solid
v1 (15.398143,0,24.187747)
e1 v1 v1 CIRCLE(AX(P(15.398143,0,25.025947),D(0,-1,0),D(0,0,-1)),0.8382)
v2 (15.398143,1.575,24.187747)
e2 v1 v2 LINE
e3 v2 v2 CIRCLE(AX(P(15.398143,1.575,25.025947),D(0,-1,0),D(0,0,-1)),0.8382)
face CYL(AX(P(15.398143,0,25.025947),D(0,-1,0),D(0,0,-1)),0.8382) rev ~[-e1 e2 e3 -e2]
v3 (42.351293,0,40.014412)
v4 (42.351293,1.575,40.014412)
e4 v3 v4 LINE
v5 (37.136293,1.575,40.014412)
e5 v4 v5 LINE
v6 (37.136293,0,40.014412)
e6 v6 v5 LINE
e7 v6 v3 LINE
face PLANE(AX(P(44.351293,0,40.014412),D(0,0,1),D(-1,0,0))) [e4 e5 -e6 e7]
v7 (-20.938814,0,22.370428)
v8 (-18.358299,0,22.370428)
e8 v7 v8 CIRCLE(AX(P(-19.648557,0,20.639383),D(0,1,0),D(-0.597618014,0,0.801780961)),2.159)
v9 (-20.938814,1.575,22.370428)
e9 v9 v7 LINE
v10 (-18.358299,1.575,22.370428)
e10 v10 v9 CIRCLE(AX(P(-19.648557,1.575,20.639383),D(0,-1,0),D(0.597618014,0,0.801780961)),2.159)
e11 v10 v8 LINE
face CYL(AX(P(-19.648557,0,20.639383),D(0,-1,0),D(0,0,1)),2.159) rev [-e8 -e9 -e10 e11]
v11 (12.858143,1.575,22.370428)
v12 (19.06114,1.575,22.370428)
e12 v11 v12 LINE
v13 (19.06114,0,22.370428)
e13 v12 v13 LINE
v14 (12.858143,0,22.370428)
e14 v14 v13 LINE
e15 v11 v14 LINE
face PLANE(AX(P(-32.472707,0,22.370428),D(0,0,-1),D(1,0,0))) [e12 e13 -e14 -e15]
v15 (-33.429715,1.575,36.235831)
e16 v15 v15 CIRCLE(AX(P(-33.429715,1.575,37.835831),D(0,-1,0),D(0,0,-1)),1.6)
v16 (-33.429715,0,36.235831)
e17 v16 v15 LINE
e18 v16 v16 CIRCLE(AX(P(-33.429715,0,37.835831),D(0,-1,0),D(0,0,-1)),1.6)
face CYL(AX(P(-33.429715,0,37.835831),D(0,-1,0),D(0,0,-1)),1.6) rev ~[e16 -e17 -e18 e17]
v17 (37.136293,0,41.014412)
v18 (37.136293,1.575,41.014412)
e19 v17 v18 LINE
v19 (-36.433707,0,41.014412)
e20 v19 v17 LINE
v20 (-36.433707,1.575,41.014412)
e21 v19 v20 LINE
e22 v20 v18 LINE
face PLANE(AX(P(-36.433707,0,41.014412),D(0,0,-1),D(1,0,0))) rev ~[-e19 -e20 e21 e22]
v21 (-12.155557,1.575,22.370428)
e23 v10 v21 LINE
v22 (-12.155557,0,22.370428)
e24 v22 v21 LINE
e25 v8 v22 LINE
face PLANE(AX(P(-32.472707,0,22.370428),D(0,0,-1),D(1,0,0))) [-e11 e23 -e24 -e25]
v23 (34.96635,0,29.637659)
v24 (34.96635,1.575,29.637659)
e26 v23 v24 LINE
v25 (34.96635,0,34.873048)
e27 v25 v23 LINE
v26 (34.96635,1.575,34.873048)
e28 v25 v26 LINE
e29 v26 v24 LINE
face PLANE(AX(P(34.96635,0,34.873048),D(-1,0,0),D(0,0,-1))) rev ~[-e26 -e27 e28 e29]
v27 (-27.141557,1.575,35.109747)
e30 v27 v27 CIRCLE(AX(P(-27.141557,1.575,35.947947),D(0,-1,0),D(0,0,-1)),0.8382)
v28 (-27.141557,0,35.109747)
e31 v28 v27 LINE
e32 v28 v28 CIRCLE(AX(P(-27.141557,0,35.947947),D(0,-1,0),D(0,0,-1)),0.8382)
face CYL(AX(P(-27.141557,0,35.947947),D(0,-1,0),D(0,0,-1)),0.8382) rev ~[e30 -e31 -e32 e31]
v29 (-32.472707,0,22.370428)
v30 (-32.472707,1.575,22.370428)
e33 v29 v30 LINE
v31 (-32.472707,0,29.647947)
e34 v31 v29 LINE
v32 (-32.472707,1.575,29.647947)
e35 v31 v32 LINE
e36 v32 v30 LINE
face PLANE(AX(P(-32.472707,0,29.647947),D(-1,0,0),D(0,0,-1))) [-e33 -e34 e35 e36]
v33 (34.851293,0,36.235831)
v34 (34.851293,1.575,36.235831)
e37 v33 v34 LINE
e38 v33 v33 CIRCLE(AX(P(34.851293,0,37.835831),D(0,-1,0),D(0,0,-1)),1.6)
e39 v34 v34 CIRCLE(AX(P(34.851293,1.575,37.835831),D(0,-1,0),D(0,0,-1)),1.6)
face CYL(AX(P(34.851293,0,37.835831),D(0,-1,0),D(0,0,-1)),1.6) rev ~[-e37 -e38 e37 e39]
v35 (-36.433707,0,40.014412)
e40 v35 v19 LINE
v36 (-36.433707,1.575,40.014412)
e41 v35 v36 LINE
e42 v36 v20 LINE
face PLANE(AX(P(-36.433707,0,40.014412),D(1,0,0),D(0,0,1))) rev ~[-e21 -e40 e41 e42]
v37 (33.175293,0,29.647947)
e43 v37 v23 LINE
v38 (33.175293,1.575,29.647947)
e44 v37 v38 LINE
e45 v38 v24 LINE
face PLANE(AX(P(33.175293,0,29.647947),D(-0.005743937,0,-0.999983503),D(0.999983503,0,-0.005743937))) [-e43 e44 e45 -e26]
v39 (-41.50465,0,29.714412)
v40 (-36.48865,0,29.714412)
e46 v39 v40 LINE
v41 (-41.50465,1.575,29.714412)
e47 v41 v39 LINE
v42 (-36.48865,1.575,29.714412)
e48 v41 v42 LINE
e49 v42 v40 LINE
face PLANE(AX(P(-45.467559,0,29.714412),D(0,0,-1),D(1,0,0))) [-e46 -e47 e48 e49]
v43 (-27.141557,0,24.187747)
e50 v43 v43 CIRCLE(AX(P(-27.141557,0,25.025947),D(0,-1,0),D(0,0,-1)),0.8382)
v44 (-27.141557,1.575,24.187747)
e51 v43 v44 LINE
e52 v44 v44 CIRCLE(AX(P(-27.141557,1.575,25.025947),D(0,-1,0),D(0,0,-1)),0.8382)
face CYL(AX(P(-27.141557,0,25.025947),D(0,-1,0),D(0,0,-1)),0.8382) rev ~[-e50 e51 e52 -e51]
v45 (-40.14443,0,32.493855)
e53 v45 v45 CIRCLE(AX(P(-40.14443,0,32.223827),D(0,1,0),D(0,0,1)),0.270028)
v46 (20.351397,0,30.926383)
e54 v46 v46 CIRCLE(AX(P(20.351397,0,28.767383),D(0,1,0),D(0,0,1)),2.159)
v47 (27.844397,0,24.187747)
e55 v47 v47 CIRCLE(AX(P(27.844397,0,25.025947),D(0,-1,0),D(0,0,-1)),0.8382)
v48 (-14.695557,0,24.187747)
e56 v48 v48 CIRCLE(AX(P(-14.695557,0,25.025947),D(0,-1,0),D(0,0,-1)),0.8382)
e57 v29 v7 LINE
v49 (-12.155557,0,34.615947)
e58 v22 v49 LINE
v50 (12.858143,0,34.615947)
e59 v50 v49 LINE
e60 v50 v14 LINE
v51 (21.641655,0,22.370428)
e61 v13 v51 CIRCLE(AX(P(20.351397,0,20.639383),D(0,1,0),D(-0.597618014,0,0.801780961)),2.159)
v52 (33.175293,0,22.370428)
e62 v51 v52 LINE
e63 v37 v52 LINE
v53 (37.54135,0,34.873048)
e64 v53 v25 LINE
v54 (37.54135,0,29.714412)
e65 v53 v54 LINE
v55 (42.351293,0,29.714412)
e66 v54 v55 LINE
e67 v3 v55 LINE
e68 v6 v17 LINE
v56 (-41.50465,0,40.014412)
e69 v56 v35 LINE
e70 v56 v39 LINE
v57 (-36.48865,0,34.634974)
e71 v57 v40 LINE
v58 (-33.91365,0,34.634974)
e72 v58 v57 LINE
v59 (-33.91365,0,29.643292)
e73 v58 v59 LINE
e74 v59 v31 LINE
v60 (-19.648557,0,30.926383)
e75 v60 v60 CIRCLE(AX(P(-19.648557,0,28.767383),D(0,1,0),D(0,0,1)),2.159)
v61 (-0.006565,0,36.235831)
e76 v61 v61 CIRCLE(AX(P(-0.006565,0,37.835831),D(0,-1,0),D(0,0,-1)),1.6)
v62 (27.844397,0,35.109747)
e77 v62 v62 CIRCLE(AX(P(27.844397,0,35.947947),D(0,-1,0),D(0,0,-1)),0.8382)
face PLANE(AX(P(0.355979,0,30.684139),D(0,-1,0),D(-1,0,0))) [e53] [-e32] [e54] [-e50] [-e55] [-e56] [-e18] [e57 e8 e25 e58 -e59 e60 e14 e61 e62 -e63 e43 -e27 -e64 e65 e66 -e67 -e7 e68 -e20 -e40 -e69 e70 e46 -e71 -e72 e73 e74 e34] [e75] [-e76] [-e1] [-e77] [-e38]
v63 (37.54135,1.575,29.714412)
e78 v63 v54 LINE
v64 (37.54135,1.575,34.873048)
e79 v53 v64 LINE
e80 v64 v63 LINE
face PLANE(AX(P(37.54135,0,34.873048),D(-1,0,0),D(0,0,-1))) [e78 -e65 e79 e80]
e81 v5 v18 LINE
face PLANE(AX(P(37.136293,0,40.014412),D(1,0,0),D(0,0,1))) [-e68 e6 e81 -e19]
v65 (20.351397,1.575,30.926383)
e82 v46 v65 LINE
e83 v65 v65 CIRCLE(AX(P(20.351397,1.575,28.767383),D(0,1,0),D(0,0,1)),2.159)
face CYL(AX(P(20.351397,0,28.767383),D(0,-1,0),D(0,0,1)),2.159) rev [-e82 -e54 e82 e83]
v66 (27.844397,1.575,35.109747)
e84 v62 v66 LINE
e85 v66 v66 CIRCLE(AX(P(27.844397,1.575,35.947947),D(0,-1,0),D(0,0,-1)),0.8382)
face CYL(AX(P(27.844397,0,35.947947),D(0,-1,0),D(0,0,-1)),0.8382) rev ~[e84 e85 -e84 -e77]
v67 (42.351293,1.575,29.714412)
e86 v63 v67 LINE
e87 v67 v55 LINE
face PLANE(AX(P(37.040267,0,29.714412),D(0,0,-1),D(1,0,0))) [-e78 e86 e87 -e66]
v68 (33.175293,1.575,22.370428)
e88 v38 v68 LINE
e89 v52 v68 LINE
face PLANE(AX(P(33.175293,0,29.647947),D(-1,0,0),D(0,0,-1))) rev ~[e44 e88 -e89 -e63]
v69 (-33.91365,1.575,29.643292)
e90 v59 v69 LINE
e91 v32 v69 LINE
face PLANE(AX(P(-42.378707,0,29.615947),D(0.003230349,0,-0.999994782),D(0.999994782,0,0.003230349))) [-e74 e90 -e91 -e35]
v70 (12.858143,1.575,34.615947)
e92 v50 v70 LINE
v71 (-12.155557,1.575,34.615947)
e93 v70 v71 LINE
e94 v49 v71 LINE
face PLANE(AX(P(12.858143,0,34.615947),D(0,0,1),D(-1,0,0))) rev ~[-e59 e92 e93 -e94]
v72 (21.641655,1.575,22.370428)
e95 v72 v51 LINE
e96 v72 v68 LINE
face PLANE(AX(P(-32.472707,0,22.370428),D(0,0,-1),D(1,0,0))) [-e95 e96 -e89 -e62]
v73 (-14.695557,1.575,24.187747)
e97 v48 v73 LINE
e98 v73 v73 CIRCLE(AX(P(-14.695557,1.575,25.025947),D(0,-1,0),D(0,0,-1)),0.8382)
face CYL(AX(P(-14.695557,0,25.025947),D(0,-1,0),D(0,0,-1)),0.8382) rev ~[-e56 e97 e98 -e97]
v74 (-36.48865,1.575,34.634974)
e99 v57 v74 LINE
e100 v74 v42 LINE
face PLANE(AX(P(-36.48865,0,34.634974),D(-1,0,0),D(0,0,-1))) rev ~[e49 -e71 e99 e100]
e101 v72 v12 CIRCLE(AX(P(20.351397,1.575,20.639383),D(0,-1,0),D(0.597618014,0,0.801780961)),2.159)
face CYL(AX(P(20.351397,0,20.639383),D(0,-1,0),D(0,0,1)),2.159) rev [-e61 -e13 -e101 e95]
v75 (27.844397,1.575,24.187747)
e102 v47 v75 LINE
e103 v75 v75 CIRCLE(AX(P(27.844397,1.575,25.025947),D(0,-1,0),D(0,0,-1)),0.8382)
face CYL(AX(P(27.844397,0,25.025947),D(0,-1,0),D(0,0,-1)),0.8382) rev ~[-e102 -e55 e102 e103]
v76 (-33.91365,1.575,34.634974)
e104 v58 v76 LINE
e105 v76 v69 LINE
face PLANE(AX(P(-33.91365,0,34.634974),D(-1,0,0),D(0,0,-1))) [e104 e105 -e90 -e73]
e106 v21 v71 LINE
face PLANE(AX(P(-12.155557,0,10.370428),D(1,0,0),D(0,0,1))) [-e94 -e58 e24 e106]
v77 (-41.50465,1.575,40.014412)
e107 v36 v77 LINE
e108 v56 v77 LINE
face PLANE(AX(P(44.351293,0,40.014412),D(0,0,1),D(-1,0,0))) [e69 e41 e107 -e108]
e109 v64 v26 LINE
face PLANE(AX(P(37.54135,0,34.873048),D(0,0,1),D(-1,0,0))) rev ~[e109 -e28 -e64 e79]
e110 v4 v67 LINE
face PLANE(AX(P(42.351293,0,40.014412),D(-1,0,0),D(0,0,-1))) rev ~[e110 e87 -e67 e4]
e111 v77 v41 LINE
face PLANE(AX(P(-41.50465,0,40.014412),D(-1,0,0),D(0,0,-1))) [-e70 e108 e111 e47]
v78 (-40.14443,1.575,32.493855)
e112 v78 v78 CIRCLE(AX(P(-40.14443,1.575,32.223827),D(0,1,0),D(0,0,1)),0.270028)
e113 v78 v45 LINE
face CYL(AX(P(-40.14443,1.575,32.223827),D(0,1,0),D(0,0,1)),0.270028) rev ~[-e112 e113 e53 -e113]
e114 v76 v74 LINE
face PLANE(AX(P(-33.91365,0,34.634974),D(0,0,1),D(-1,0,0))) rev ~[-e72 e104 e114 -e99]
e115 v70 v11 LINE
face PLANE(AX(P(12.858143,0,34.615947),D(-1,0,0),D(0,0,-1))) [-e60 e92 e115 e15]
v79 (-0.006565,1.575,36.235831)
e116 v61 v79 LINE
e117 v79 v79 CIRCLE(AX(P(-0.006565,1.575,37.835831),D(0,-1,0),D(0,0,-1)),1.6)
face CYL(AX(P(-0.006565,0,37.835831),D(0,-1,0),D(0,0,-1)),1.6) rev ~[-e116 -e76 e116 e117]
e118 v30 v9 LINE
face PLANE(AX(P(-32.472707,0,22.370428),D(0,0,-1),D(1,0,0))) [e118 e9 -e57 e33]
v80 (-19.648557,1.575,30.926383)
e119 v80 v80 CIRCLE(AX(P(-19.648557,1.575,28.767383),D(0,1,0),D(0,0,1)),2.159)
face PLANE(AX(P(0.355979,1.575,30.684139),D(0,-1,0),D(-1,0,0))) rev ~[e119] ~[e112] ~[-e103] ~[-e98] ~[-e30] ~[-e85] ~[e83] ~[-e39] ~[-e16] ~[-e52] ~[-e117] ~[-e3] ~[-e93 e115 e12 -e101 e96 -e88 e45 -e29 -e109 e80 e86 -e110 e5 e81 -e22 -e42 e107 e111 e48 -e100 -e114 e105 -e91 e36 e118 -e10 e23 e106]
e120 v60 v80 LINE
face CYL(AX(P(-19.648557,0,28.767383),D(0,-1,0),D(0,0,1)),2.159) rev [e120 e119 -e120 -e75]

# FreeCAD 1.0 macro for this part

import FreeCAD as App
import Part
import Sketcher
Q = App.Units.Quantity

doc = App.newDocument("Part")
body = doc.addObject("PartDesign::Body", "Body")

# Sketch on XZ plane
sketch1 = doc.addObject("Sketcher::SketchObject", "Sketch")
body.addObject(sketch1)
sketch1.AttachmentSupport = (doc.XZ_Plane, [""])
sketch1.MapMode = "FlatFace"
sketch1.addGeometry([
    Part.LineSegment(App.Vector(37.1, 40, 0), App.Vector(44.4, 40, 0)),  # 0
    Part.LineSegment(App.Vector(44.4, 40, 0), App.Vector(44.4, 29.6, 0)),  # 1
    Part.LineSegment(App.Vector(44.4, 29.6, 0), App.Vector(38.7, 29.6, 0)),  # 2
    Part.LineSegment(App.Vector(38.7, 29.6, 0), App.Vector(33.2, 29.6, 0)),  # 3
    Part.LineSegment(App.Vector(33.2, 29.6, 0), App.Vector(33.2, 10.4, 0)),  # 4
    Part.LineSegment(App.Vector(33.2, 10.4, 0), App.Vector(12.9, 10.4, 0)),  # 5
    Part.LineSegment(App.Vector(12.9, 10.4, 0), App.Vector(12.9, 34.6, 0)),  # 6
    Part.LineSegment(App.Vector(12.9, 34.6, 0), App.Vector(-12.2, 34.6, 0)),  # 7
    Part.LineSegment(App.Vector(-12.2, 34.6, 0), App.Vector(-12.2, 10.4, 0)),  # 8
    Part.LineSegment(App.Vector(-12.2, 10.4, 0), App.Vector(-32.5, 10.4, 0)),  # 9
    Part.LineSegment(App.Vector(-32.5, 10.4, 0), App.Vector(-32.5, 29.6, 0)),  # 10
    Part.LineSegment(App.Vector(-32.5, 29.6, 0), App.Vector(-42.4, 29.6, 0)),  # 11
    Part.LineSegment(App.Vector(-42.4, 29.6, 0), App.Vector(-43.6, 29.6, 0)),  # 12
    Part.LineSegment(App.Vector(-43.6, 29.6, 0), App.Vector(-43.6, 40, 0)),  # 13
    Part.LineSegment(App.Vector(-43.6, 40, 0), App.Vector(-36.4, 40, 0)),  # 14
    Part.LineSegment(App.Vector(-36.4, 40, 0), App.Vector(-36.4, 46.6, 0)),  # 15
    Part.LineSegment(App.Vector(-36.4, 46.6, 0), App.Vector(37.1, 46.6, 0)),  # 16
    Part.LineSegment(App.Vector(37.1, 46.6, 0), App.Vector(37.1, 40, 0)),  # 17
    Part.Circle(App.Vector(20.4, 28.8, 0), App.Vector(0, 0, 1), 2.2),  # 18
    Part.Circle(App.Vector(-19.6, 28.8, 0), App.Vector(0, 0, 1), 2.2),  # 19
    Part.Circle(App.Vector(20.4, 20.6, 0), App.Vector(0, 0, 1), 2.2),  # 20
    Part.Circle(App.Vector(-19.6, 20.6, 0), App.Vector(0, 0, 1), 2.2),  # 21
], False)
sketch1.addConstraint([
    Sketcher.Constraint("Coincident", 0, 2, 1, 1),
    Sketcher.Constraint("Coincident", 1, 2, 2, 1),
    Sketcher.Constraint("Coincident", 2, 2, 3, 1),
    Sketcher.Constraint("Coincident", 3, 2, 4, 1),
    Sketcher.Constraint("Coincident", 4, 2, 5, 1),
    Sketcher.Constraint("Coincident", 5, 2, 6, 1),
    Sketcher.Constraint("Coincident", 6, 2, 7, 1),
    Sketcher.Constraint("Coincident", 7, 2, 8, 1),
    Sketcher.Constraint("Coincident", 8, 2, 9, 1),
    Sketcher.Constraint("Coincident", 9, 2, 10, 1),
    Sketcher.Constraint("Coincident", 10, 2, 11, 1),
    Sketcher.Constraint("Coincident", 11, 2, 12, 1),
    Sketcher.Constraint("Coincident", 12, 2, 13, 1),
    Sketcher.Constraint("Coincident", 13, 2, 14, 1),
    Sketcher.Constraint("Coincident", 14, 2, 15, 1),
    Sketcher.Constraint("Coincident", 15, 2, 16, 1),
    Sketcher.Constraint("Coincident", 16, 2, 17, 1),
    Sketcher.Constraint("Coincident", 17, 2, 0, 1),
    Sketcher.Constraint("Horizontal", 0),
    Sketcher.Constraint("Vertical", 1),
    Sketcher.Constraint("Horizontal", 2),
    Sketcher.Constraint("Vertical", 4),
    Sketcher.Constraint("Horizontal", 5),
    Sketcher.Constraint("Vertical", 6),
    Sketcher.Constraint("Horizontal", 7),
    Sketcher.Constraint("Vertical", 8),
    Sketcher.Constraint("Horizontal", 9),
    Sketcher.Constraint("Vertical", 10),
    Sketcher.Constraint("Vertical", 13),
    Sketcher.Constraint("Horizontal", 14),
    Sketcher.Constraint("Vertical", 15),
    Sketcher.Constraint("Horizontal", 16),
    Sketcher.Constraint("Vertical", 17),
    Sketcher.Constraint("Equal", 18, 19),
    Sketcher.Constraint("Equal", 19, 20),
    Sketcher.Constraint("Equal", 20, 21),
    Sketcher.Constraint("Horizontal", 18, 3, 19, 3),
    Sketcher.Constraint("Horizontal", 20, 3, 21, 3),
    Sketcher.Constraint("Horizontal", 5, 2, 8, 2),
    Sketcher.Constraint("Horizontal", 3, 2, 10, 2),
    Sketcher.Constraint("Horizontal", 2, 2, 11, 2),
    Sketcher.Constraint("Horizontal", 10, 2, 12, 2),
    Sketcher.Constraint("Horizontal", 0, 2, 13, 2),
    Sketcher.Constraint("Vertical", 18, 3, 20, 3),
    Sketcher.Constraint("Vertical", 19, 3, 21, 3),
    Sketcher.Constraint("Equal", 5, 9),
    Sketcher.Constraint("Equal", 0, 14),
    Sketcher.Constraint("Diameter", 18, Q("4.318 mm")),
    Sketcher.Constraint("DistanceY", 2, 2, 6, 2, Q("5 mm")),
    Sketcher.Constraint("DistanceY", 11, 2, 15, 2, Q("17 mm")),
    Sketcher.Constraint("DistanceX", 16, 1, 16, 2, Q("73.57 mm")),
    Sketcher.Constraint("DistanceX", 0, 1, 0, 2, Q("7.215 mm")),
    Sketcher.Constraint("DistanceX", 2, 2, 2, 1, Q("5.605 mm")),
    Sketcher.Constraint("DistanceX", 12, 2, 11, 2, Q("1.27 mm")),
    Sketcher.Constraint("DistanceX", 7, 2, 7, 1, Q("25.0137 mm")),
    Sketcher.Constraint("DistanceY", 20, 3, 18, 3, Q("8.128 mm")),
    Sketcher.Constraint("DistanceX", 3, 2, 2, 2, Q("5.571 mm")),
    Sketcher.Constraint("DistanceY", 2, 2, 3, 2, Q("0.032 mm")),
    Sketcher.Constraint("DistanceX", 19, 3, 7, 2, Q("7.493 mm")),
    Sketcher.Constraint("DistanceX", 11, 2, 10, 2, Q("9.906 mm")),
    Sketcher.Constraint("DistanceY", 4, 2, 4, 1, Q("19.277518 mm")),
    Sketcher.Constraint("DistanceY", 1, 2, 1, 1, Q("10.398465 mm")),
    Sketcher.Constraint("DistanceY", -1, 1, 4, 2, Q("10.370428 mm")),
    Sketcher.Constraint("DistanceY", 18, 3, 0, 2, Q("11.247029 mm")),
    Sketcher.Constraint("DistanceX", -1, 1, 18, 3, Q("20.351397 mm")),
    Sketcher.Constraint("DistanceX", 19, 3, -1, 1, Q("19.648557 mm")),
])
pad1 = doc.addObject("PartDesign::Pad", "Pad")
body.addObject(pad1)
pad1.Profile = sketch1
pad1.Length = 1.575
pad1.Reversed = True

# Sketch on XZ plane
sketch2 = doc.addObject("Sketcher::SketchObject", "Sketch001")
body.addObject(sketch2)
sketch2.AttachmentSupport = (doc.XZ_Plane, [""])
sketch2.MapMode = "FlatFace"
sketch2.addGeometry([
    Part.LineSegment(App.Vector(-49, 47, 0), App.Vector(-49, 40, 0)),
    Part.LineSegment(App.Vector(-49, 40, 0), App.Vector(44, 40, 0)),
    Part.LineSegment(App.Vector(44, 40, 0), App.Vector(44, 47, 0)),
    Part.LineSegment(App.Vector(44, 47, 0), App.Vector(-49, 47, 0)),
], False)
sketch2.addConstraint([
    Sketcher.Constraint("Coincident", 0, 2, 1, 1),
    Sketcher.Constraint("Coincident", 1, 2, 2, 1),
    Sketcher.Constraint("Coincident", 2, 2, 3, 1),
    Sketcher.Constraint("Coincident", 3, 2, 0, 1),
    Sketcher.Constraint("Vertical", 0),
    Sketcher.Constraint("Horizontal", 1),
    Sketcher.Constraint("Vertical", 2),
    Sketcher.Constraint("Horizontal", 3),
    Sketcher.Constraint("DistanceY", 0, 2, 0, 1, Q("6.602 mm")),
    Sketcher.Constraint("DistanceX", 1, 1, 1, 2, Q("93.457659 mm")),
    Sketcher.Constraint("DistanceX", 0, 2, -1, 1, Q("49.106365 mm")),
    Sketcher.Constraint("DistanceY", -1, 1, 0, 2, Q("40.014412 mm")),
])
pocket1 = doc.addObject("PartDesign::Pocket", "Pocket")
body.addObject(pocket1)
pocket1.Profile = sketch2
pocket1.Type = "ThroughAll"

# Sketch on XZ plane
sketch3 = doc.addObject("Sketcher::SketchObject", "Sketch002")
body.addObject(sketch3)
sketch3.AttachmentSupport = (doc.XZ_Plane, [""])
sketch3.MapMode = "FlatFace"
sketch3.addGeometry([
    Part.LineSegment(App.Vector(-42, 30, 0), App.Vector(-42, 40, 0)),  # 0
    Part.LineSegment(App.Vector(-42, 40, 0), App.Vector(-48, 40, 0)),  # 1
    Part.LineSegment(App.Vector(-48, 40, 0), App.Vector(-48, 9, 0)),  # 2
    Part.LineSegment(App.Vector(-48, 9, 0), App.Vector(-35, 9, 0)),  # 3
    Part.LineSegment(App.Vector(-35, 9, 0), App.Vector(-35, 30, 0)),  # 4
    Part.LineSegment(App.Vector(-35, 30, 0), App.Vector(-42, 30, 0)),  # 5
], False)
sketch3.addConstraint([
    Sketcher.Constraint("Coincident", 0, 2, 1, 1),
    Sketcher.Constraint("Coincident", 1, 2, 2, 1),
    Sketcher.Constraint("Coincident", 2, 2, 3, 1),
    Sketcher.Constraint("Coincident", 3, 2, 4, 1),
    Sketcher.Constraint("Coincident", 4, 2, 5, 1),
    Sketcher.Constraint("Coincident", 5, 2, 0, 1),
    Sketcher.Constraint("Vertical", 0),
    Sketcher.Constraint("Horizontal", 1),
    Sketcher.Constraint("Vertical", 2),
    Sketcher.Constraint("Horizontal", 3),
    Sketcher.Constraint("Vertical", 4),
    Sketcher.Constraint("DistanceX", 0, 2, 3, 2, Q("6.875 mm")),
    Sketcher.Constraint("DistanceY", 0, 1, 0, 2, Q("10.395642 mm")),
    Sketcher.Constraint("DistanceY", 2, 2, 2, 1, Q("31.038322 mm")),
    Sketcher.Constraint("DistanceY", 4, 1, 4, 2, Q("20.664889 mm")),
    Sketcher.Constraint("DistanceX", 1, 2, 1, 1, Q("6.624128 mm")),
    Sketcher.Constraint("DistanceX", 0, 2, -1, 1, Q("41.50465 mm")),
    Sketcher.Constraint("DistanceY", -1, 1, 2, 2, Q("8.97609 mm")),
])
pocket2 = doc.addObject("PartDesign::Pocket", "Pocket001")
body.addObject(pocket2)
pocket2.Profile = sketch3
pocket2.Type = "ThroughAll"

# Sketch on XZ plane
sketch4 = doc.addObject("Sketcher::SketchObject", "Sketch003")
body.addObject(sketch4)
sketch4.AttachmentSupport = (doc.XZ_Plane, [""])
sketch4.MapMode = "FlatFace"
sketch4.addGeometry([
    Part.LineSegment(App.Vector(42, 40, 0), App.Vector(42, 30, 0)),  # 0
    Part.LineSegment(App.Vector(42, 30, 0), App.Vector(35, 30, 0)),  # 1
    Part.LineSegment(App.Vector(35, 30, 0), App.Vector(35, 10, 0)),  # 2
    Part.LineSegment(App.Vector(35, 10, 0), App.Vector(55, 10, 0)),  # 3
    Part.LineSegment(App.Vector(55, 10, 0), App.Vector(55, 40, 0)),  # 4
    Part.LineSegment(App.Vector(55, 40, 0), App.Vector(42, 40, 0)),  # 5
], False)
sketch4.addConstraint([
    Sketcher.Constraint("Coincident", 0, 2, 1, 1),
    Sketcher.Constraint("Coincident", 1, 2, 2, 1),
    Sketcher.Constraint("Coincident", 2, 2, 3, 1),
    Sketcher.Constraint("Coincident", 3, 2, 4, 1),
    Sketcher.Constraint("Coincident", 4, 2, 5, 1),
    Sketcher.Constraint("Coincident", 5, 2, 0, 1),
    Sketcher.Constraint("Vertical", 0),
    Sketcher.Constraint("Horizontal", 1),
    Sketcher.Constraint("Vertical", 2),
    Sketcher.Constraint("Horizontal", 3),
    Sketcher.Constraint("Vertical", 4),
    Sketcher.Constraint("Horizontal", 5),
    Sketcher.Constraint("DistanceX", 1, 2, 1, 1, Q("6.875 mm")),
    Sketcher.Constraint("DistanceX", 3, 1, 3, 2, Q("19.234599 mm")),
    Sketcher.Constraint("DistanceY", 2, 2, 2, 1, Q("19.245518 mm")),
    Sketcher.Constraint("DistanceY", 0, 2, 0, 1, Q("10.398465 mm")),
    Sketcher.Constraint("DistanceY", -1, 1, 2, 2, Q("10.370428 mm")),
    Sketcher.Constraint("DistanceX", -1, 1, 0, 2, Q("42.351293 mm")),
])
pocket3 = doc.addObject("PartDesign::Pocket", "Pocket002")
body.addObject(pocket3)
pocket3.Profile = sketch4
pocket3.Type = "ThroughAll"

# Sketch on XZ plane
sketch5 = doc.addObject("Sketcher::SketchObject", "Sketch004")
body.addObject(sketch5)
sketch5.AttachmentSupport = (doc.XZ_Plane, [""])
sketch5.MapMode = "FlatFace"
sketch5.addGeometry([
    Part.Circle(App.Vector(-27.1, 35.9, 0), App.Vector(0, 0, 1), 0.8),  # 0
    Part.Circle(App.Vector(-27.1, 25, 0), App.Vector(0, 0, 1), 0.8),  # 1
    Part.Circle(App.Vector(-14.7, 25, 0), App.Vector(0, 0, 1), 0.8),  # 2
    Part.Circle(App.Vector(15.4, 25, 0), App.Vector(0, 0, 1), 0.8),  # 3
    Part.Circle(App.Vector(27.8, 25, 0), App.Vector(0, 0, 1), 0.8),  # 4
    Part.Circle(App.Vector(27.8, 35.9, 0), App.Vector(0, 0, 1), 0.8),  # 5
], False)
sketch5.addConstraint([
    Sketcher.Constraint("Equal", 0, 1),
    Sketcher.Constraint("Equal", 1, 2),
    Sketcher.Constraint("Equal", 2, 3),
    Sketcher.Constraint("Equal", 3, 4),
    Sketcher.Constraint("Equal", 4, 5),
    Sketcher.Constraint("Horizontal", 1, 3, 2, 3),
    Sketcher.Constraint("Horizontal", 2, 3, 3, 3),
    Sketcher.Constraint("Horizontal", 3, 3, 4, 3),
    Sketcher.Constraint("Horizontal", 0, 3, 5, 3),
    Sketcher.Constraint("Vertical", 0, 3, 1, 3),
    Sketcher.Constraint("Vertical", 4, 3, 5, 3),
    Sketcher.Constraint("Diameter", 0, Q("1.6764 mm")),
    Sketcher.Constraint("DistanceY", 1, 3, 0, 3, Q("10.922 mm")),
    Sketcher.Constraint("DistanceX", 1, 3, 2, 3, Q("12.446 mm")),
    Sketcher.Constraint("DistanceX", 2, 3, 3, 3, Q("30.0937 mm")),
    Sketcher.Constraint("DistanceX", 0, 3, -1, 1, Q("27.141557 mm")),
    Sketcher.Constraint("DistanceY", -1, 1, 0, 3, Q("35.947947 mm")),
    Sketcher.Constraint("DistanceX", -1, 1, 4, 3, Q("27.844397 mm")),
])
pocket4 = doc.addObject("PartDesign::Pocket", "Pocket003")
body.addObject(pocket4)
pocket4.Profile = sketch5
pocket4.Length = 2.54

# Sketch on XZ plane
sketch6 = doc.addObject("Sketcher::SketchObject", "Sketch005")
body.addObject(sketch6)
sketch6.AttachmentSupport = (doc.XZ_Plane, [""])
sketch6.MapMode = "FlatFace"
sketch6.addGeometry([
    Part.LineSegment(App.Vector(-32, 22, 0), App.Vector(-32, 10, 0)),
    Part.LineSegment(App.Vector(-32, 10, 0), App.Vector(33, 10, 0)),
    Part.LineSegment(App.Vector(33, 10, 0), App.Vector(33, 22, 0)),
    Part.LineSegment(App.Vector(33, 22, 0), App.Vector(-32, 22, 0)),
], False)
sketch6.addConstraint([
    Sketcher.Constraint("Coincident", 0, 2, 1, 1),
    Sketcher.Constraint("Coincident", 1, 2, 2, 1),
    Sketcher.Constraint("Coincident", 2, 2, 3, 1),
    Sketcher.Constraint("Coincident", 3, 2, 0, 1),
    Sketcher.Constraint("Vertical", 0),
    Sketcher.Constraint("Horizontal", 1),
    Sketcher.Constraint("Vertical", 2),
    Sketcher.Constraint("Horizontal", 3),
    Sketcher.Constraint("DistanceY", 0, 2, 0, 1, Q("12 mm")),
    Sketcher.Constraint("DistanceX", 1, 1, 1, 2, Q("65.648 mm")),
    Sketcher.Constraint("DistanceY", -1, 1, 0, 2, Q("10.370428 mm")),
    Sketcher.Constraint("DistanceX", 0, 2, -1, 1, Q("32.472707 mm")),
])
pocket5 = doc.addObject("PartDesign::Pocket", "Pocket004")
body.addObject(pocket5)
pocket5.Profile = sketch6
pocket5.Type = "ThroughAll"

# Sketch on XZ plane
sketch7 = doc.addObject("Sketcher::SketchObject", "Sketch006")
body.addObject(sketch7)
sketch7.AttachmentSupport = (doc.XZ_Plane, [""])
sketch7.MapMode = "FlatFace"
sketch7.AttachmentOffset = App.Placement(App.Vector(0, 0, -1.575), App.Rotation())
sketch7.addGeometry(Part.Circle(App.Vector(-40.14, 32.22, 0), App.Vector(0, 0, 1), 0.27), False)
sketch7.addConstraint([
    Sketcher.Constraint("Diameter", 0, Q("0.540055 mm")),
    Sketcher.Constraint("DistanceX", 0, 3, -1, 1, Q("40.14443 mm")),
    Sketcher.Constraint("DistanceY", -1, 1, 0, 3, Q("32.223827 mm")),
])
pocket6 = doc.addObject("PartDesign::Pocket", "Pocket005")
body.addObject(pocket6)
pocket6.Profile = sketch7
pocket6.Type = "ThroughAll"
pocket6.Reversed = True

# Sketch on XZ plane
sketch8 = doc.addObject("Sketcher::SketchObject", "Sketch007")
body.addObject(sketch8)
sketch8.AttachmentSupport = (doc.XZ_Plane, [""])
sketch8.MapMode = "FlatFace"
sketch8.addGeometry([
    Part.LineSegment(App.Vector(-33.9, 29.6, 0), App.Vector(-33.9, 34.6, 0)),
    Part.LineSegment(App.Vector(-33.9, 34.6, 0), App.Vector(-36.5, 34.6, 0)),
    Part.LineSegment(App.Vector(-36.5, 34.6, 0), App.Vector(-36.5, 29.6, 0)),
    Part.LineSegment(App.Vector(-36.5, 29.6, 0), App.Vector(-33.9, 29.6, 0)),
], False)
sketch8.addConstraint([
    Sketcher.Constraint("Coincident", 0, 2, 1, 1),
    Sketcher.Constraint("Coincident", 1, 2, 2, 1),
    Sketcher.Constraint("Coincident", 2, 2, 3, 1),
    Sketcher.Constraint("Coincident", 3, 2, 0, 1),
    Sketcher.Constraint("Vertical", 0),
    Sketcher.Constraint("Horizontal", 1),
    Sketcher.Constraint("Vertical", 2),
    Sketcher.Constraint("Horizontal", 3),
    Sketcher.Constraint("DistanceY", 0, 1, 0, 2, Q("5 mm")),
    Sketcher.Constraint("DistanceX", 1, 2, 1, 1, Q("2.575 mm")),
    Sketcher.Constraint("DistanceX", 0, 2, -1, 1, Q("33.91365 mm")),
    Sketcher.Constraint("DistanceY", -1, 1, 0, 2, Q("34.634974 mm")),
])
pocket7 = doc.addObject("PartDesign::Pocket", "Pocket006")
body.addObject(pocket7)
pocket7.Profile = sketch8
pocket7.Type = "ThroughAll"

# Sketch on XZ plane
sketch9 = doc.addObject("Sketcher::SketchObject", "Sketch008")
body.addObject(sketch9)
sketch9.AttachmentSupport = (doc.XZ_Plane, [""])
sketch9.MapMode = "FlatFace"
sketch9.addGeometry([
    Part.LineSegment(App.Vector(37.5, 22.4, 0), App.Vector(37.5, 34.9, 0)),
    Part.LineSegment(App.Vector(37.5, 34.9, 0), App.Vector(35, 34.9, 0)),
    Part.LineSegment(App.Vector(35, 34.9, 0), App.Vector(35, 22.4, 0)),
    Part.LineSegment(App.Vector(35, 22.4, 0), App.Vector(37.5, 22.4, 0)),
], False)
sketch9.addConstraint([
    Sketcher.Constraint("Coincident", 0, 2, 1, 1),
    Sketcher.Constraint("Coincident", 1, 2, 2, 1),
    Sketcher.Constraint("Coincident", 2, 2, 3, 1),
    Sketcher.Constraint("Coincident", 3, 2, 0, 1),
    Sketcher.Constraint("Vertical", 0),
    Sketcher.Constraint("Horizontal", 1),
    Sketcher.Constraint("Vertical", 2),
    Sketcher.Constraint("Horizontal", 3),
    Sketcher.Constraint("DistanceX", 1, 2, 1, 1, Q("2.575 mm")),
    Sketcher.Constraint("DistanceY", 0, 1, 0, 2, Q("12.50262 mm")),
    Sketcher.Constraint("DistanceX", -1, 1, 0, 2, Q("37.54135 mm")),
    Sketcher.Constraint("DistanceY", -1, 1, 0, 2, Q("34.873048 mm")),
])
pocket8 = doc.addObject("PartDesign::Pocket", "Pocket007")
body.addObject(pocket8)
pocket8.Profile = sketch9
pocket8.Type = "ThroughAll"

# Sketch on XZ plane
sketch10 = doc.addObject("Sketcher::SketchObject", "Sketch009")
body.addObject(sketch10)
sketch10.AttachmentSupport = (doc.XZ_Plane, [""])
sketch10.MapMode = "FlatFace"
sketch10.addGeometry([
    Part.LineSegment(App.Vector(-36.4, 41, 0), App.Vector(-36.4, 40, 0)),
    Part.LineSegment(App.Vector(-36.4, 40, 0), App.Vector(37.1, 40, 0)),
    Part.LineSegment(App.Vector(37.1, 40, 0), App.Vector(37.1, 41, 0)),
    Part.LineSegment(App.Vector(37.1, 41, 0), App.Vector(-36.4, 41, 0)),
], False)
sketch10.addConstraint([
    Sketcher.Constraint("Coincident", 0, 2, 1, 1),
    Sketcher.Constraint("Coincident", 1, 2, 2, 1),
    Sketcher.Constraint("Coincident", 2, 2, 3, 1),
    Sketcher.Constraint("Coincident", 3, 2, 0, 1),
    Sketcher.Constraint("Vertical", 0),
    Sketcher.Constraint("Horizontal", 1),
    Sketcher.Constraint("Vertical", 2),
    Sketcher.Constraint("Horizontal", 3),
    Sketcher.Constraint("DistanceY", 0, 2, 0, 1, Q("1 mm")),
    Sketcher.Constraint("DistanceX", 1, 1, 1, 2, Q("73.57 mm")),
    Sketcher.Constraint("DistanceX", 0, 2, -1, 1, Q("36.433707 mm")),
    Sketcher.Constraint("DistanceY", -1, 1, 0, 2, Q("40.014412 mm")),
])
pad2 = doc.addObject("PartDesign::Pad", "Pad001")
body.addObject(pad2)
pad2.Profile = sketch10
pad2.Length = 1.575
pad2.Reversed = True

# Sketch on XZ plane
sketch11 = doc.addObject("Sketcher::SketchObject", "Sketch010")
body.addObject(sketch11)
sketch11.AttachmentSupport = (doc.XZ_Plane, [""])
sketch11.MapMode = "FlatFace"
sketch11.addGeometry([
    Part.Circle(App.Vector(0, 37.8, 0), App.Vector(0, 0, 1), 1.6),
    Part.Circle(App.Vector(-33.4, 37.8, 0), App.Vector(0, 0, 1), 1.6),
    Part.Circle(App.Vector(34.9, 37.8, 0), App.Vector(0, 0, 1), 1.6),
], False)
sketch11.addConstraint([
    Sketcher.Constraint("Equal", 0, 1),
    Sketcher.Constraint("Equal", 1, 2),
    Sketcher.Constraint("Horizontal", 0, 3, 1, 3),
    Sketcher.Constraint("Horizontal", 1, 3, 2, 3),
    Sketcher.Constraint("Diameter", 0, Q("3.2 mm")),
    Sketcher.Constraint("DistanceY", -1, 1, 0, 3, Q("37.835831 mm")),
    Sketcher.Constraint("DistanceX", 1, 3, 0, 3, Q("33.42315 mm")),
    Sketcher.Constraint("DistanceX", 0, 3, 2, 3, Q("34.857859 mm")),
    Sketcher.Constraint("DistanceX", 0, 3, -1, 1, Q("0.006565 mm")),
])
pocket9 = doc.addObject("PartDesign::Pocket", "Pocket008")
body.addObject(pocket9)
pocket9.Profile = sketch11
pocket9.Type = "ThroughAll"

# Sketch on XZ plane
sketch12 = doc.addObject("Sketcher::SketchObject", "Sketch011")
body.addObject(sketch12)
sketch12.AttachmentSupport = (doc.XZ_Plane, [""])
sketch12.MapMode = "FlatFace"
sketch12.addGeometry([
    Part.LineSegment(App.Vector(37, 29.7, 0), App.Vector(37, 28, 0)),  # 0
    Part.LineSegment(App.Vector(37, 28, 0), App.Vector(43.1, 28, 0)),  # 1
    Part.LineSegment(App.Vector(43.1, 28, 0), App.Vector(43.1, 29.7, 0)),  # 2
    Part.LineSegment(App.Vector(43.1, 29.7, 0), App.Vector(37, 29.7, 0)),  # 3
    Part.LineSegment(App.Vector(-45.5, 29.7, 0), App.Vector(-45.5, 28, 0)),  # 4
    Part.LineSegment(App.Vector(-45.5, 28, 0), App.Vector(-35.7, 28, 0)),  # 5
    Part.LineSegment(App.Vector(-35.7, 28, 0), App.Vector(-35.7, 29.7, 0)),  # 6
    Part.LineSegment(App.Vector(-35.7, 29.7, 0), App.Vector(-45.5, 29.7, 0)),  # 7
], False)
sketch12.addConstraint([
    Sketcher.Constraint("Coincident", 0, 2, 1, 1),
    Sketcher.Constraint("Coincident", 1, 2, 2, 1),
    Sketcher.Constraint("Coincident", 2, 2, 3, 1),
    Sketcher.Constraint("Coincident", 3, 2, 0, 1),
    Sketcher.Constraint("Coincident", 4, 2, 5, 1),
    Sketcher.Constraint("Coincident", 5, 2, 6, 1),
    Sketcher.Constraint("Coincident", 6, 2, 7, 1),
    Sketcher.Constraint("Coincident", 7, 2, 4, 1),
    Sketcher.Constraint("Vertical", 0),
    Sketcher.Constraint("Horizontal", 1),
    Sketcher.Constraint("Vertical", 2),
    Sketcher.Constraint("Horizontal", 3),
    Sketcher.Constraint("Vertical", 4),
    Sketcher.Constraint("Horizontal", 5),
    Sketcher.Constraint("Vertical", 6),
    Sketcher.Constraint("Horizontal", 7),
    Sketcher.Constraint("Horizontal", 1, 2, 4, 2),
    Sketcher.Constraint("Horizontal", 3, 2, 6, 2),
    Sketcher.Constraint("DistanceY", 0, 2, 0, 1, Q("1.7 mm")),
    Sketcher.Constraint("DistanceX", 1, 1, 1, 2, Q("6.013983 mm")),
    Sketcher.Constraint("DistanceX", 5, 1, 5, 2, Q("9.814468 mm")),
    Sketcher.Constraint("DistanceX", -1, 1, 1, 2, Q("43.05425 mm")),
    Sketcher.Constraint("DistanceX", 4, 2, -1, 1, Q("45.467559 mm")),
    Sketcher.Constraint("DistanceY", -1, 1, 0, 2, Q("28.014412 mm")),
])
pocket10 = doc.addObject("PartDesign::Pocket", "Pocket009")
body.addObject(pocket10)
pocket10.Profile = sketch12
pocket10.Type = "ThroughAll"

doc.recompute()
